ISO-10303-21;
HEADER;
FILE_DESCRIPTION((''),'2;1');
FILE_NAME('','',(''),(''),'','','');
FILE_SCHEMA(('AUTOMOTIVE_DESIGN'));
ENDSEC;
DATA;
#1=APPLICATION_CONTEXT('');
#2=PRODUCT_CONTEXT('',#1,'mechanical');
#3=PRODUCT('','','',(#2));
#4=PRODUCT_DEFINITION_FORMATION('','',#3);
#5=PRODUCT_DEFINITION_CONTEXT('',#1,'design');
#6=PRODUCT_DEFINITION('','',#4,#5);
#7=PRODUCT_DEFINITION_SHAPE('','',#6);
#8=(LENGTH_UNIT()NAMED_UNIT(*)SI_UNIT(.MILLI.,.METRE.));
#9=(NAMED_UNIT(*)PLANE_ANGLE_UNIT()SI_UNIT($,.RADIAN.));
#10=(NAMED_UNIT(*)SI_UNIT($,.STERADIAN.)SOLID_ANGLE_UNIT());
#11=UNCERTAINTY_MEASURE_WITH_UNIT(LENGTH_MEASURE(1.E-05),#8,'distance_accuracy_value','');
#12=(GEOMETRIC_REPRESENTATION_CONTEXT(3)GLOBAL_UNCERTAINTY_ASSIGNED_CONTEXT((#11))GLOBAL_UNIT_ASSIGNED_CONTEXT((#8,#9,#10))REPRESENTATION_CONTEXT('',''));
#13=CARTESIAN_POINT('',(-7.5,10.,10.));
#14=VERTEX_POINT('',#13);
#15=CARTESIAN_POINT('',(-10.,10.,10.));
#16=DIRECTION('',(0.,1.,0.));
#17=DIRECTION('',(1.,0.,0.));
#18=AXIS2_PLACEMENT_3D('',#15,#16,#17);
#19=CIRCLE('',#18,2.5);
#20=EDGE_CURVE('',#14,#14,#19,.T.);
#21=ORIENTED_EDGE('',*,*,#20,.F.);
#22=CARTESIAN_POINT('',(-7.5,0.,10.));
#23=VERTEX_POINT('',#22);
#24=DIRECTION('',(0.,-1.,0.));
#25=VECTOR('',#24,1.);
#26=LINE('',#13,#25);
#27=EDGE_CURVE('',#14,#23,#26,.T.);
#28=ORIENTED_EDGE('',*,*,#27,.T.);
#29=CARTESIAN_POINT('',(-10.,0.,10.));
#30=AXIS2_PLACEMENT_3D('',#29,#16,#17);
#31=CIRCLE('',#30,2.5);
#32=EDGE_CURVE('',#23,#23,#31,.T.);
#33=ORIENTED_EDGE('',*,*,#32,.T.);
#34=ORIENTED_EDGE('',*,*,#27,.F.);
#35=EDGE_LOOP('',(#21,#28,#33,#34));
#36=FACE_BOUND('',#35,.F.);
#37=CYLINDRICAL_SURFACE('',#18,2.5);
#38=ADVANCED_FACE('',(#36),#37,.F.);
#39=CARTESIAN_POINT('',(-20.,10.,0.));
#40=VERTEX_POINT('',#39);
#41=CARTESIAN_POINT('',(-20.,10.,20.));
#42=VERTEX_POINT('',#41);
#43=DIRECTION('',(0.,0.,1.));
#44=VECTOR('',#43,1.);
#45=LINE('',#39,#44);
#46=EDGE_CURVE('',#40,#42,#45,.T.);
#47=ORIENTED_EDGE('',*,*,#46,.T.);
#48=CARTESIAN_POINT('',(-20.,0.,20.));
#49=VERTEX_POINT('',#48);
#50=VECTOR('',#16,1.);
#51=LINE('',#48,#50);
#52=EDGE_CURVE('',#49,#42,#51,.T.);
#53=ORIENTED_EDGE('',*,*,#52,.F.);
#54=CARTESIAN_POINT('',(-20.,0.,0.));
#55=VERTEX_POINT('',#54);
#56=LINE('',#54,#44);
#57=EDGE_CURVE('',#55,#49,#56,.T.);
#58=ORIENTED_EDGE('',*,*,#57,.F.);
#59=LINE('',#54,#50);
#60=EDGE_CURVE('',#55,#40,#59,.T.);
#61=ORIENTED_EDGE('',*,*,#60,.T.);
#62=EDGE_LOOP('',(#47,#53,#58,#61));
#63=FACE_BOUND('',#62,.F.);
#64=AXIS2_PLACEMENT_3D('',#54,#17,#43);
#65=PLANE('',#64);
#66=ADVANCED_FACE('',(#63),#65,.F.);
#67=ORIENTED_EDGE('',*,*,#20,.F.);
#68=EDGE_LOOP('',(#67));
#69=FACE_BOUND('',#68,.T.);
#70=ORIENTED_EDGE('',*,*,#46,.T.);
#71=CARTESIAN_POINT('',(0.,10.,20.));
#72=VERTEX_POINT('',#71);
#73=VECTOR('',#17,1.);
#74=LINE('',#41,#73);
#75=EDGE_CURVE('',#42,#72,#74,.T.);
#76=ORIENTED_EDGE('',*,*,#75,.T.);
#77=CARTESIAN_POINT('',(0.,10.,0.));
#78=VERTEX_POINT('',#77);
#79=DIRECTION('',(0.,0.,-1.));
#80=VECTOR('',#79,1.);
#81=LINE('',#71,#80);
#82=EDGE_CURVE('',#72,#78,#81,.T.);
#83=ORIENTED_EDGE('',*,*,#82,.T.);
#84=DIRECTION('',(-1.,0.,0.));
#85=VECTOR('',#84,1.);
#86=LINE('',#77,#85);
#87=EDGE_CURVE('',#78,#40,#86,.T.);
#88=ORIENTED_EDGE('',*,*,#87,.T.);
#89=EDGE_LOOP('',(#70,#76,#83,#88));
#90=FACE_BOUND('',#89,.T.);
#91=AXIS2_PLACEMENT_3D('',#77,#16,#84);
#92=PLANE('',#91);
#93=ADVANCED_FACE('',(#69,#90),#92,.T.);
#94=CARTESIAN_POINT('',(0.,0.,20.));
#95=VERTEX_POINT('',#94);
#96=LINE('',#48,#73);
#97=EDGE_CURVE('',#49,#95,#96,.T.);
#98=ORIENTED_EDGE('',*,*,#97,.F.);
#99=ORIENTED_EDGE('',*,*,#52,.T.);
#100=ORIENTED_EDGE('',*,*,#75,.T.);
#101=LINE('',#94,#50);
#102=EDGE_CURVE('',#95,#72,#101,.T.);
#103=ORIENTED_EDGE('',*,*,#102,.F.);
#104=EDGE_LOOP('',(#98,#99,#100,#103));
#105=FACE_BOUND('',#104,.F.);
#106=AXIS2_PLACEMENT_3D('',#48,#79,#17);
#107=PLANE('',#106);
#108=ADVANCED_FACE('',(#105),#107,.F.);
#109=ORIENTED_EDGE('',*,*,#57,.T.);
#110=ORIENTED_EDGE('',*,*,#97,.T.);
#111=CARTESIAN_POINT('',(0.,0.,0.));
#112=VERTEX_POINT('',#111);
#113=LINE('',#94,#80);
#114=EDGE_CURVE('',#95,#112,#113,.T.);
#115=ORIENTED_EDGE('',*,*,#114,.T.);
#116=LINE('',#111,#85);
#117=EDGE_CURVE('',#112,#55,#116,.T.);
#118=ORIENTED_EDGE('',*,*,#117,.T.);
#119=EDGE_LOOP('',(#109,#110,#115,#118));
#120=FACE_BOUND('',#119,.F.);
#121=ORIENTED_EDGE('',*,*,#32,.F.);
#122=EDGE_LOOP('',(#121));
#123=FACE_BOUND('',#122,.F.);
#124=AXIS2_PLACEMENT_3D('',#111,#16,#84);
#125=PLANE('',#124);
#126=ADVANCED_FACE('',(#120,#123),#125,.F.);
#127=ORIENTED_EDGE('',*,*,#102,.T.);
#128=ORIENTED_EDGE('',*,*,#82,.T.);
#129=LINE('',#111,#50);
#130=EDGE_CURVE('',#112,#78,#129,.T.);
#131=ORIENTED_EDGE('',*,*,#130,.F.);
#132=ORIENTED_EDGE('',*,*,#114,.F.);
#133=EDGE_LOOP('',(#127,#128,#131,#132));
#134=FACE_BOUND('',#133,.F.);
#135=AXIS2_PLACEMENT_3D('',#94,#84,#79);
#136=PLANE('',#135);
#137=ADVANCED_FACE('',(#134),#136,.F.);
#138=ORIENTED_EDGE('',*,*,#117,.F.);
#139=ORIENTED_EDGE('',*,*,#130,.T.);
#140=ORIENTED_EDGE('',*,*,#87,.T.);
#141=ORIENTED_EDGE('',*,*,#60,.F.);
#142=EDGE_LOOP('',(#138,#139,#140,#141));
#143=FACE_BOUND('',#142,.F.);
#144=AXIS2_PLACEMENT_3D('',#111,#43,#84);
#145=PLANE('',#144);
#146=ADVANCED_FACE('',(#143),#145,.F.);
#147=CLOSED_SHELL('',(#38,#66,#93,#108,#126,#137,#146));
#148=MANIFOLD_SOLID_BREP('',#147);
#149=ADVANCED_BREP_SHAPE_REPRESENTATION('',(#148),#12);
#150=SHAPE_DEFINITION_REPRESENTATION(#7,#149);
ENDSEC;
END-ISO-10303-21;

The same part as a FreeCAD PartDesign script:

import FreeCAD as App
import Part
import Sketcher

V = App.Vector
Q = App.Units.Quantity

doc = App.newDocument("Part")
body = doc.addObject("PartDesign::Body", "Body")

# Sketch on XZ plane
sketch1 = doc.addObject("Sketcher::SketchObject", "Sketch")
body.addObject(sketch1)
sketch1.AttachmentSupport = (doc.XZ_Plane, [""])
sketch1.MapMode = "FlatFace"
sketch1.addGeometry([
    Part.LineSegment(V(0, 20, 0), V(0, 0, 0)),
    Part.LineSegment(V(0, 0, 0), V(-20, 0, 0)),
    Part.LineSegment(V(-20, 0, 0), V(-20, 20, 0)),
    Part.LineSegment(V(-20, 20, 0), V(0, 20, 0)),
], False)
sketch1.addConstraint([
    Sketcher.Constraint("Coincident", 0, 2, 1, 1),
    Sketcher.Constraint("Coincident", 1, 2, 2, 1),
    Sketcher.Constraint("Coincident", 2, 2, 3, 1),
    Sketcher.Constraint("Coincident", 3, 2, 0, 1),
    Sketcher.Constraint("Vertical", 0),
    Sketcher.Constraint("Horizontal", 1),
    Sketcher.Constraint("Vertical", 2),
    Sketcher.Constraint("Horizontal", 3),
    Sketcher.Constraint("Coincident", 0, 2, -1, 1),
    Sketcher.Constraint("Equal", 3, 0),
    Sketcher.Constraint("DistanceX", 1, 2, 1, 1, Q("20 mm")),
])
pad1 = doc.addObject("PartDesign::Pad", "Pad")
body.addObject(pad1)
pad1.Profile = sketch1
pad1.Length = 10
pad1.Reversed = True

# Sketch on XZ plane
sketch2 = doc.addObject("Sketcher::SketchObject", "Sketch001")
body.addObject(sketch2)
sketch2.AttachmentSupport = (doc.XZ_Plane, [""])
sketch2.MapMode = "FlatFace"
sketch2.AttachmentOffset = App.Placement(V(0, 0, -10), App.Rotation())
sketch2.addGeometry(Part.Circle(V(-10, 10, 0), V(0, 0, 1), 2.5), False)
sketch2.addConstraint([
    Sketcher.Constraint("Diameter", 0, Q("5 mm")),
    Sketcher.Constraint("DistanceX", 0, 3, -1, 1, Q("10 mm")),
    Sketcher.Constraint("DistanceY", -1, 1, 0, 3, Q("10 mm")),
])
pocket1 = doc.addObject("PartDesign::Pocket", "Pocket")
body.addObject(pocket1)
pocket1.Profile = sketch2
pocket1.Length = 20
pocket1.Reversed = True

doc.recompute()
